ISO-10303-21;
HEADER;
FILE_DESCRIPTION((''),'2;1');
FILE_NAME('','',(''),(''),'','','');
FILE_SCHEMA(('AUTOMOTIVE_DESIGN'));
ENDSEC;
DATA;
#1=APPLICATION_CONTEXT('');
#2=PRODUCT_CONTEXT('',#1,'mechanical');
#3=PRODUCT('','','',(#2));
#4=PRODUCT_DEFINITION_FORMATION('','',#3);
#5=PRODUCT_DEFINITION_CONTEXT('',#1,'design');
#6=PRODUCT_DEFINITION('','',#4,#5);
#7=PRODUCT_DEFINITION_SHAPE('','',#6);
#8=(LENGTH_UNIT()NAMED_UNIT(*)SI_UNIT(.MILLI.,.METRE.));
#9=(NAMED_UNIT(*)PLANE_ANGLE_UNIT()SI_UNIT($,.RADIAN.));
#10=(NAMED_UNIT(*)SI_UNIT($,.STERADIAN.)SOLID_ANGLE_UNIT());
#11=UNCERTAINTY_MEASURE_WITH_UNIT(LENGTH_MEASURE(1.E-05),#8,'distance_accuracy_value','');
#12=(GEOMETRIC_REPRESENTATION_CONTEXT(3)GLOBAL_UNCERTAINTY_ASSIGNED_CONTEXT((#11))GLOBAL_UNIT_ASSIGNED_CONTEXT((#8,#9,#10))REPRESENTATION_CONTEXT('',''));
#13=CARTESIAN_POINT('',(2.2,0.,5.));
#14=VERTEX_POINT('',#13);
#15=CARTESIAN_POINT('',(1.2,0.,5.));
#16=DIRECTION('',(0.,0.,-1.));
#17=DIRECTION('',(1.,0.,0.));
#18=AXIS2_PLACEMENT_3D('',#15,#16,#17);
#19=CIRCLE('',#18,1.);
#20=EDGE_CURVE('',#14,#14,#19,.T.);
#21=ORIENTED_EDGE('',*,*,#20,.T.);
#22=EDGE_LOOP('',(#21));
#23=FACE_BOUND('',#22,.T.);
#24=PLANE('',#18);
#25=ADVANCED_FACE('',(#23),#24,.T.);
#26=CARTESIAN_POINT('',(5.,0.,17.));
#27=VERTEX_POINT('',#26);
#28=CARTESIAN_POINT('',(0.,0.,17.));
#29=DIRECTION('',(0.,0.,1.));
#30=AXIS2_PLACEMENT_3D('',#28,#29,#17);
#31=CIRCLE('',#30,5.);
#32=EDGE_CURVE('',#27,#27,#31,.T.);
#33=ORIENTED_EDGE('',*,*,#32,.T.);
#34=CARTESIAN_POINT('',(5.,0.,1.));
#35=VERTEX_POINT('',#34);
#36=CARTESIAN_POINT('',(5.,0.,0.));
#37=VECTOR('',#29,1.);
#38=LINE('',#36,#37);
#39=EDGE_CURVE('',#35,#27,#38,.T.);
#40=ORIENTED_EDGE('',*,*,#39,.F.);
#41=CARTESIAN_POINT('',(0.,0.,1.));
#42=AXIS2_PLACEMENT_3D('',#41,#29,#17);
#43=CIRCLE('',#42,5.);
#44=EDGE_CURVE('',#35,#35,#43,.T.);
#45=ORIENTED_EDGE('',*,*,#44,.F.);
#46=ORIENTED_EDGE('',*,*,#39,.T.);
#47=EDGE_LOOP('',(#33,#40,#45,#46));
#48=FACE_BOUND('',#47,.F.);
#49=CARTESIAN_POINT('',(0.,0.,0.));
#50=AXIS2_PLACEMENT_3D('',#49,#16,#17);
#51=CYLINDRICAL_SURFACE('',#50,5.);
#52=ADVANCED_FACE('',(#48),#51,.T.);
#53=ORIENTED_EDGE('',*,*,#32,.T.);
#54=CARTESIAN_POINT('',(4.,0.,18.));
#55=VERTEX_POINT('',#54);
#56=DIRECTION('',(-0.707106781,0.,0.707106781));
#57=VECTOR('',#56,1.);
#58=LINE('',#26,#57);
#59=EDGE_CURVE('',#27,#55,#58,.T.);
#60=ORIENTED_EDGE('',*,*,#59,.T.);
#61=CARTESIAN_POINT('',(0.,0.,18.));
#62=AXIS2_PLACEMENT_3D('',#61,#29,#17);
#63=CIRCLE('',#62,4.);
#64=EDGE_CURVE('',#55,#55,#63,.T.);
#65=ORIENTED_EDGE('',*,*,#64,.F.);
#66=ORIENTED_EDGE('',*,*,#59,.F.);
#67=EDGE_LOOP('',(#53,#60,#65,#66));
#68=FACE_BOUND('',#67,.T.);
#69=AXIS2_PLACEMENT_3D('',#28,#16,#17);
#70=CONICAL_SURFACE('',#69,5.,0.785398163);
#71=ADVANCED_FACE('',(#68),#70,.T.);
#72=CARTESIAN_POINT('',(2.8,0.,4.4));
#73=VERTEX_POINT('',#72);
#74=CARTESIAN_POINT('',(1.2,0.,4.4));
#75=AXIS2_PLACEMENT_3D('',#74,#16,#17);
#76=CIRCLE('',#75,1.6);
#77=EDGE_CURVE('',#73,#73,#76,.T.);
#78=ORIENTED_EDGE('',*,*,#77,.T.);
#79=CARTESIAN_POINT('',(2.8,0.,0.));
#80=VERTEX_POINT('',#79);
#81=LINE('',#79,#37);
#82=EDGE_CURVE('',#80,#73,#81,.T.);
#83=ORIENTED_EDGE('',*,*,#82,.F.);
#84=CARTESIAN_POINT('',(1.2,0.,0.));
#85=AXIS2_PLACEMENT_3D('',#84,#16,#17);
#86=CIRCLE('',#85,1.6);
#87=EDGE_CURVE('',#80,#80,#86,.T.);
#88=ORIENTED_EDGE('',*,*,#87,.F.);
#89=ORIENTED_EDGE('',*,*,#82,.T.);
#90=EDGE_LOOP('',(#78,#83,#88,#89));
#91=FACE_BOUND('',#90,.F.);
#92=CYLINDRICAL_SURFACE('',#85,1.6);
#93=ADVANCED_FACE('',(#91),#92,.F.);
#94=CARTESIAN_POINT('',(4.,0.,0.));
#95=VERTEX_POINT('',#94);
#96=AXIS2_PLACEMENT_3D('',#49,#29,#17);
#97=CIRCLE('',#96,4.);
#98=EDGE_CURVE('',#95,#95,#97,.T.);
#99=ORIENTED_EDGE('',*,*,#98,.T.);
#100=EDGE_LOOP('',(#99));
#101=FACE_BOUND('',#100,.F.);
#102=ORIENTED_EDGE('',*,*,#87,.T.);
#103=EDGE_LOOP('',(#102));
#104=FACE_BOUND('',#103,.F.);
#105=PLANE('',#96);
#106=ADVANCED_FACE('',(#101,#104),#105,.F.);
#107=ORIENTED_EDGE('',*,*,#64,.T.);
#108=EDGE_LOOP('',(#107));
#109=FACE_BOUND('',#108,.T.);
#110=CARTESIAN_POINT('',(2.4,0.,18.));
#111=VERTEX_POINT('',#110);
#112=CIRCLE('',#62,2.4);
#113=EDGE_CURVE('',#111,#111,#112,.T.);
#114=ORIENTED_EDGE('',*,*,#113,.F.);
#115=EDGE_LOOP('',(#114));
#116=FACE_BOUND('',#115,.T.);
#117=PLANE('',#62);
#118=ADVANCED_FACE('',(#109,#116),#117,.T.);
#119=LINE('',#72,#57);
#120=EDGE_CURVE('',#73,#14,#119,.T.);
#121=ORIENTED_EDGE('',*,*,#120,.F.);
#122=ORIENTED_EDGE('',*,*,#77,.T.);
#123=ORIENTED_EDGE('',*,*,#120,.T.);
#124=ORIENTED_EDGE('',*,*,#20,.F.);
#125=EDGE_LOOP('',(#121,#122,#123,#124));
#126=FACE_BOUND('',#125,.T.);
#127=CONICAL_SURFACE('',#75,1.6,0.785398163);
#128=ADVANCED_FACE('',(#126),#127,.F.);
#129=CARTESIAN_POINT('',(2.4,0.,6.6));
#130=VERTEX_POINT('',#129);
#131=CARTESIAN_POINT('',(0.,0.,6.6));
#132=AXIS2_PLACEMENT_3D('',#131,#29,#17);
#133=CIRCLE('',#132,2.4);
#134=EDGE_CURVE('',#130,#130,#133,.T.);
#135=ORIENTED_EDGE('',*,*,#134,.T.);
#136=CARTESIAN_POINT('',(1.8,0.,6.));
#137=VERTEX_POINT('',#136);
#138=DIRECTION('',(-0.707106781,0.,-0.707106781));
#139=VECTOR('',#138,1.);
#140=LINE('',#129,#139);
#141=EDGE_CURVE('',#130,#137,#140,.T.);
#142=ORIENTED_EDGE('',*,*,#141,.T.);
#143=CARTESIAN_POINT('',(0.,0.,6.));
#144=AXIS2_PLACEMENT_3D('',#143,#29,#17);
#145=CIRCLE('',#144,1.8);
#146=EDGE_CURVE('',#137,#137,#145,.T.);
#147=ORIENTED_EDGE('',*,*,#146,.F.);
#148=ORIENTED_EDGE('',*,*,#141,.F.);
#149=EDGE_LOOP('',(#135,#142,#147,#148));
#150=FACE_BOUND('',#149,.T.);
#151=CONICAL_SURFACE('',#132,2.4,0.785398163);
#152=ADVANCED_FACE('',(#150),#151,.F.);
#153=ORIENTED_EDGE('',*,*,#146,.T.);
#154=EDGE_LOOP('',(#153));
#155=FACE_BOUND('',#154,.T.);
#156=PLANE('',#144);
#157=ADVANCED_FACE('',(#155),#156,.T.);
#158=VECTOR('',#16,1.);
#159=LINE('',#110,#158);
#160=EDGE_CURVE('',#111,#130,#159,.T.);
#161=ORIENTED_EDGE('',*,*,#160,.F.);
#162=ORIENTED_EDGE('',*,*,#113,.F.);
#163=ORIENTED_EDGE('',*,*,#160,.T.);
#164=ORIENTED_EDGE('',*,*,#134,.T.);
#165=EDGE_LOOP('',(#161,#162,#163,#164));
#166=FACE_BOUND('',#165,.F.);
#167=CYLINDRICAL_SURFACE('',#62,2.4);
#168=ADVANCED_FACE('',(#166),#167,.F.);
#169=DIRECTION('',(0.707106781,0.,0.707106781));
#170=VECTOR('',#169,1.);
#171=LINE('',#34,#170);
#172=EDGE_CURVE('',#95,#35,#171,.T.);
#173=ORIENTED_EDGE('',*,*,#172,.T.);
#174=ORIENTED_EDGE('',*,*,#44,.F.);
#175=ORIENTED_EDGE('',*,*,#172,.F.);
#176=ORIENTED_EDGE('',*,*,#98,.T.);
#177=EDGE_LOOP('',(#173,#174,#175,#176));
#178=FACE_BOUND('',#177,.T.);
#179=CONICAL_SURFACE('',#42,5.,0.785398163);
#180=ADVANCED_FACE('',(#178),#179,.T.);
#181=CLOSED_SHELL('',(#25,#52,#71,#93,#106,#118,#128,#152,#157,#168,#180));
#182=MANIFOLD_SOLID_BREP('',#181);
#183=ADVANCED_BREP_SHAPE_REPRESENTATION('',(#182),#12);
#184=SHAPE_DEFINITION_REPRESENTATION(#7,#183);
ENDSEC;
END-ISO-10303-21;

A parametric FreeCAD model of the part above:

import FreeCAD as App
import Part
import Sketcher
Q = App.Units.Quantity


def edges_at(feature, points):
    """Names of the edges that pass closest to the given points."""
    edges = feature.Shape.Edges
    near = lambda p: min(range(len(edges)), key=lambda i: edges[i].distToShape(Part.Vertex(*p))[0])
    return sorted({f"Edge{near(p) + 1}" for p in points})

doc = App.newDocument("Part")
body = doc.addObject("PartDesign::Body", "Body")

sketch1 = body.newObject("Sketcher::SketchObject", "Sketch")
sketch1.AttachmentSupport = (doc.getObject("XY_Plane"), [""])
sketch1.MapMode = "FlatFace"
sketch1.addGeometry(Part.Circle(App.Vector(0, 0, 0), App.Vector(0, 0, 1), 5), False)
sketch1.addConstraint([
    Sketcher.Constraint("Coincident", 0, 3, -1, 1),
    Sketcher.Constraint("Diameter", 0, Q("10 mm")),
])
pad1 = body.newObject("PartDesign::Pad", "Pad")
pad1.Profile = sketch1
pad1.Length = 18

sketch2 = body.newObject("Sketcher::SketchObject", "Sketch001")
sketch2.AttachmentSupport = (doc.getObject("XY_Plane"), [""])
sketch2.MapMode = "FlatFace"
sketch2.AttachmentOffset = App.Placement(App.Vector(0, 0, 18), App.Rotation())
sketch2.addGeometry(Part.Circle(App.Vector(0, 0, 0), App.Vector(0, 0, 1), 2.4), False)
sketch2.addConstraint([
    Sketcher.Constraint("Coincident", 0, 3, -1, 1),
    Sketcher.Constraint("Diameter", 0, Q("4.8 mm")),
])
pocket1 = body.newObject("PartDesign::Pocket", "Pocket")
pocket1.Profile = sketch2
pocket1.Length = 12

sketch3 = body.newObject("Sketcher::SketchObject", "Sketch002")
sketch3.AttachmentSupport = (doc.getObject("XY_Plane"), [""])
sketch3.MapMode = "FlatFace"
sketch3.addGeometry(Part.Circle(App.Vector(1.2, 0, 0), App.Vector(0, 0, 1), 1.6), False)
sketch3.addConstraint([
    Sketcher.Constraint("PointOnObject", 0, 3, -1),
    Sketcher.Constraint("Diameter", 0, Q("3.2 mm")),
    Sketcher.Constraint("DistanceX", -1, 1, 0, 3, Q("1.2 mm")),
])
pocket2 = body.newObject("PartDesign::Pocket", "Pocket001")
pocket2.Profile = sketch3
pocket2.Length = 5
pocket2.Reversed = True
doc.recompute()

chamfer = body.newObject("PartDesign::Chamfer", "Chamfer")
chamfer.Base = (pocket2, edges_at(pocket2, [(-0.4, 0, 5), (-2.4, 0, 6)]))
chamfer.Size = 0.6
doc.recompute()

chamfer2 = body.newObject("PartDesign::Chamfer", "Chamfer001")
chamfer2.Base = (chamfer, edges_at(chamfer, [(-5, 0, 0), (-5, 0, 18)]))
chamfer2.Size = 1

doc.recompute()
